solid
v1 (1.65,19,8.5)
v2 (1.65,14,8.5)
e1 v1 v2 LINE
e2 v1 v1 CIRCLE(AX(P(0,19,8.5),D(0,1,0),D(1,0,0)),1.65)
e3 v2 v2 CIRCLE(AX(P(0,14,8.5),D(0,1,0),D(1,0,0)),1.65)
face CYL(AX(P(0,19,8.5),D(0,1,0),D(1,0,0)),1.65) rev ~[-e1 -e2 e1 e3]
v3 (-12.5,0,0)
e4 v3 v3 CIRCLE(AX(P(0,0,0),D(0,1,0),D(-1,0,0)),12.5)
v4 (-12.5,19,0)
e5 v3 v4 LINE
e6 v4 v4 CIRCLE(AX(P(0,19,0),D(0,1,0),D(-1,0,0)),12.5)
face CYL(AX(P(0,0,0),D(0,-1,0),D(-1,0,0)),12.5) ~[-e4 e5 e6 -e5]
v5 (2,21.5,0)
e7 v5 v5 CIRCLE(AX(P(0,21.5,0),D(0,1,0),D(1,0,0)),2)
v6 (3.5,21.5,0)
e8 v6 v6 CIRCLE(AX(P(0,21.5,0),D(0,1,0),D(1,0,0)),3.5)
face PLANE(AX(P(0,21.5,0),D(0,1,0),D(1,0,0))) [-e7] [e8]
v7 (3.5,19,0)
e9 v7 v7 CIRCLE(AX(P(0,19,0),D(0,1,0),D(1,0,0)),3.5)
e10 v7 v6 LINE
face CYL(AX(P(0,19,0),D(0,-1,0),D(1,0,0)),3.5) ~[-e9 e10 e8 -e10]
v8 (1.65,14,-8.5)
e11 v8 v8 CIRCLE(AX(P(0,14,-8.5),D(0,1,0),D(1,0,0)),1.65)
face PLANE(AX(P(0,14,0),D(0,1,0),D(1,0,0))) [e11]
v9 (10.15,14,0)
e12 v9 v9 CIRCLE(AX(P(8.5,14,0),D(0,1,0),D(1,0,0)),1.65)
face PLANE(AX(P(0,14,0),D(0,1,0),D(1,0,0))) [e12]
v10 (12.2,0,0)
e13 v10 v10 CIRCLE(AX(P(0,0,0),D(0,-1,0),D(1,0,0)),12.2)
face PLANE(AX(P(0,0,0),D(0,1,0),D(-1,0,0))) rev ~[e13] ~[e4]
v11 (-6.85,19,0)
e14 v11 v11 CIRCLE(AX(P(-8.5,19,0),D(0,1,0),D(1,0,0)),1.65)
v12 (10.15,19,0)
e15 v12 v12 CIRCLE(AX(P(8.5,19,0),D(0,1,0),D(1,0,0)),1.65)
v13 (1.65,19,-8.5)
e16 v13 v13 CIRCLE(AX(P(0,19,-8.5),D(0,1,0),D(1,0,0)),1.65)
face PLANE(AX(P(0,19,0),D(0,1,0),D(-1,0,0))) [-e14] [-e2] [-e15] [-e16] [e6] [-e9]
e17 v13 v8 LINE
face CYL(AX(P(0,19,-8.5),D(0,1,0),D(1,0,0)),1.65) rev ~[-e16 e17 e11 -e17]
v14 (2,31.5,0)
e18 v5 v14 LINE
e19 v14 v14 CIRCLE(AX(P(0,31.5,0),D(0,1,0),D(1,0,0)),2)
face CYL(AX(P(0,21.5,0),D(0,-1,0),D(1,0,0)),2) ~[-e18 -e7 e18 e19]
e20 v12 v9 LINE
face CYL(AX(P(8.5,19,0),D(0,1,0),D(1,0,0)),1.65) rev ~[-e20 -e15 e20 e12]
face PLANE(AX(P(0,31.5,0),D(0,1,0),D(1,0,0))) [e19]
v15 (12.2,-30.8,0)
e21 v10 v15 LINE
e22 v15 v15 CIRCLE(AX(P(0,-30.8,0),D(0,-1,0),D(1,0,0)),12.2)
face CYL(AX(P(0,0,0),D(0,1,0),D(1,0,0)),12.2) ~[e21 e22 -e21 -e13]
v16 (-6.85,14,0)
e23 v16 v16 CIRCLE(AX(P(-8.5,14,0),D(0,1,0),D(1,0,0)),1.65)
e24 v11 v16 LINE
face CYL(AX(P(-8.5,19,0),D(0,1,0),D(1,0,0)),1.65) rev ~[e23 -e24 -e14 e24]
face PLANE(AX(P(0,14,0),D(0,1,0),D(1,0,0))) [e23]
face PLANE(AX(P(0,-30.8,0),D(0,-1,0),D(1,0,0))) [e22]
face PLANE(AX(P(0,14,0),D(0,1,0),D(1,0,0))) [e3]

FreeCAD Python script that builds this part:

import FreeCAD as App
import Part
import Sketcher

doc = App.newDocument("Part")
body = doc.addObject("PartDesign::Body", "Body")

# Sketch on XZ plane
sketch1 = body.newObject("Sketcher::SketchObject", "Sketch")
sketch1.AttachmentSupport = (doc.getObject("XZ_Plane"), [""])
sketch1.MapMode = "FlatFace"
sketch1.addGeometry(Part.Circle(App.Vector(0, 0, 0), App.Vector(0, 0, 1), 12), False)
sketch1.addConstraint([
    Sketcher.Constraint("Coincident", 0, 3, -1, 1),
    Sketcher.Constraint("Diameter", 0, 25.0),
])
pad1 = body.newObject("PartDesign::Pad", "Pad")
pad1.Profile = sketch1
pad1.Length = 19
pad1.Reversed = True

# Sketch on XZ plane
sketch2 = body.newObject("Sketcher::SketchObject", "Sketch001")
sketch2.AttachmentSupport = (doc.getObject("XZ_Plane"), [""])
sketch2.MapMode = "FlatFace"
sketch2.addGeometry(Part.Circle(App.Vector(0, 0, 0), App.Vector(0, 0, 1), 12), False)
sketch2.addConstraint([
    Sketcher.Constraint("Coincident", 0, 3, -1, 1),
    Sketcher.Constraint("Diameter", 0, 24.4),
])
pad2 = body.newObject("PartDesign::Pad", "Pad001")
pad2.Profile = sketch2
pad2.Length = 30.8

# Sketch on XZ plane
sketch3 = body.newObject("Sketcher::SketchObject", "Sketch002")
sketch3.AttachmentSupport = (doc.getObject("XZ_Plane"), [""])
sketch3.MapMode = "FlatFace"
sketch3.AttachmentOffset = App.Placement(App.Vector(0, 0, -19), App.Rotation())
sketch3.addGeometry(Part.Circle(App.Vector(0, 0, 0), App.Vector(0, 0, 1), 3.5), False)
sketch3.addConstraint([
    Sketcher.Constraint("Coincident", 0, 3, -1, 1),
    Sketcher.Constraint("Diameter", 0, 7.0),
])
pad3 = body.newObject("PartDesign::Pad", "Pad002")
pad3.Profile = sketch3
pad3.Length = 2.5
pad3.Reversed = True

# Sketch on XZ plane
sketch4 = body.newObject("Sketcher::SketchObject", "Sketch003")
sketch4.AttachmentSupport = (doc.getObject("XZ_Plane"), [""])
sketch4.MapMode = "FlatFace"
sketch4.AttachmentOffset = App.Placement(App.Vector(0, 0, -21.5), App.Rotation())
sketch4.addGeometry(Part.Circle(App.Vector(0, 0, 0), App.Vector(0, 0, 1), 2), False)
sketch4.addConstraint([
    Sketcher.Constraint("Coincident", 0, 3, -1, 1),
    Sketcher.Constraint("Diameter", 0, 4.0),
])
pad4 = body.newObject("PartDesign::Pad", "Pad003")
pad4.Profile = sketch4
pad4.Length = 10
pad4.Reversed = True

# Sketch on XZ plane
sketch5 = body.newObject("Sketcher::SketchObject", "Sketch004")
sketch5.AttachmentSupport = (doc.getObject("XZ_Plane"), [""])
sketch5.MapMode = "FlatFace"
sketch5.AttachmentOffset = App.Placement(App.Vector(0, 0, -19), App.Rotation())
sketch5.addGeometry([
    Part.Circle(App.Vector(0, -8.5, 0), App.Vector(0, 0, 1), 1.6),
    Part.Circle(App.Vector(-8.5, 0, 0), App.Vector(0, 0, 1), 1.6),
    Part.Circle(App.Vector(0, 8.5, 0), App.Vector(0, 0, 1), 1.6),
    Part.Circle(App.Vector(8.5, 0, 0), App.Vector(0, 0, 1), 1.6),
], False)
sketch5.addConstraint([
    Sketcher.Constraint("Equal", 0, 1),
    Sketcher.Constraint("Equal", 1, 2),
    Sketcher.Constraint("Equal", 2, 3),
    Sketcher.Constraint("Symmetric", 0, 3, 2, 3, -1, 1),
    Sketcher.Constraint("Symmetric", 1, 3, 3, 3, -1, 1),
    Sketcher.Constraint("PointOnObject", 0, 3, -2),
    Sketcher.Constraint("PointOnObject", 1, 3, -1),
    Sketcher.Constraint("Diameter", 0, 3.3),
    Sketcher.Constraint("DistanceY", 0, 3, 2, 3, 17.0),
    Sketcher.Constraint("DistanceX", 1, 3, 3, 3, 17.0),
])
pocket1 = body.newObject("PartDesign::Pocket", "Pocket")
pocket1.Profile = sketch5
pocket1.Length = 5
pocket1.Reversed = True

doc.recompute()
